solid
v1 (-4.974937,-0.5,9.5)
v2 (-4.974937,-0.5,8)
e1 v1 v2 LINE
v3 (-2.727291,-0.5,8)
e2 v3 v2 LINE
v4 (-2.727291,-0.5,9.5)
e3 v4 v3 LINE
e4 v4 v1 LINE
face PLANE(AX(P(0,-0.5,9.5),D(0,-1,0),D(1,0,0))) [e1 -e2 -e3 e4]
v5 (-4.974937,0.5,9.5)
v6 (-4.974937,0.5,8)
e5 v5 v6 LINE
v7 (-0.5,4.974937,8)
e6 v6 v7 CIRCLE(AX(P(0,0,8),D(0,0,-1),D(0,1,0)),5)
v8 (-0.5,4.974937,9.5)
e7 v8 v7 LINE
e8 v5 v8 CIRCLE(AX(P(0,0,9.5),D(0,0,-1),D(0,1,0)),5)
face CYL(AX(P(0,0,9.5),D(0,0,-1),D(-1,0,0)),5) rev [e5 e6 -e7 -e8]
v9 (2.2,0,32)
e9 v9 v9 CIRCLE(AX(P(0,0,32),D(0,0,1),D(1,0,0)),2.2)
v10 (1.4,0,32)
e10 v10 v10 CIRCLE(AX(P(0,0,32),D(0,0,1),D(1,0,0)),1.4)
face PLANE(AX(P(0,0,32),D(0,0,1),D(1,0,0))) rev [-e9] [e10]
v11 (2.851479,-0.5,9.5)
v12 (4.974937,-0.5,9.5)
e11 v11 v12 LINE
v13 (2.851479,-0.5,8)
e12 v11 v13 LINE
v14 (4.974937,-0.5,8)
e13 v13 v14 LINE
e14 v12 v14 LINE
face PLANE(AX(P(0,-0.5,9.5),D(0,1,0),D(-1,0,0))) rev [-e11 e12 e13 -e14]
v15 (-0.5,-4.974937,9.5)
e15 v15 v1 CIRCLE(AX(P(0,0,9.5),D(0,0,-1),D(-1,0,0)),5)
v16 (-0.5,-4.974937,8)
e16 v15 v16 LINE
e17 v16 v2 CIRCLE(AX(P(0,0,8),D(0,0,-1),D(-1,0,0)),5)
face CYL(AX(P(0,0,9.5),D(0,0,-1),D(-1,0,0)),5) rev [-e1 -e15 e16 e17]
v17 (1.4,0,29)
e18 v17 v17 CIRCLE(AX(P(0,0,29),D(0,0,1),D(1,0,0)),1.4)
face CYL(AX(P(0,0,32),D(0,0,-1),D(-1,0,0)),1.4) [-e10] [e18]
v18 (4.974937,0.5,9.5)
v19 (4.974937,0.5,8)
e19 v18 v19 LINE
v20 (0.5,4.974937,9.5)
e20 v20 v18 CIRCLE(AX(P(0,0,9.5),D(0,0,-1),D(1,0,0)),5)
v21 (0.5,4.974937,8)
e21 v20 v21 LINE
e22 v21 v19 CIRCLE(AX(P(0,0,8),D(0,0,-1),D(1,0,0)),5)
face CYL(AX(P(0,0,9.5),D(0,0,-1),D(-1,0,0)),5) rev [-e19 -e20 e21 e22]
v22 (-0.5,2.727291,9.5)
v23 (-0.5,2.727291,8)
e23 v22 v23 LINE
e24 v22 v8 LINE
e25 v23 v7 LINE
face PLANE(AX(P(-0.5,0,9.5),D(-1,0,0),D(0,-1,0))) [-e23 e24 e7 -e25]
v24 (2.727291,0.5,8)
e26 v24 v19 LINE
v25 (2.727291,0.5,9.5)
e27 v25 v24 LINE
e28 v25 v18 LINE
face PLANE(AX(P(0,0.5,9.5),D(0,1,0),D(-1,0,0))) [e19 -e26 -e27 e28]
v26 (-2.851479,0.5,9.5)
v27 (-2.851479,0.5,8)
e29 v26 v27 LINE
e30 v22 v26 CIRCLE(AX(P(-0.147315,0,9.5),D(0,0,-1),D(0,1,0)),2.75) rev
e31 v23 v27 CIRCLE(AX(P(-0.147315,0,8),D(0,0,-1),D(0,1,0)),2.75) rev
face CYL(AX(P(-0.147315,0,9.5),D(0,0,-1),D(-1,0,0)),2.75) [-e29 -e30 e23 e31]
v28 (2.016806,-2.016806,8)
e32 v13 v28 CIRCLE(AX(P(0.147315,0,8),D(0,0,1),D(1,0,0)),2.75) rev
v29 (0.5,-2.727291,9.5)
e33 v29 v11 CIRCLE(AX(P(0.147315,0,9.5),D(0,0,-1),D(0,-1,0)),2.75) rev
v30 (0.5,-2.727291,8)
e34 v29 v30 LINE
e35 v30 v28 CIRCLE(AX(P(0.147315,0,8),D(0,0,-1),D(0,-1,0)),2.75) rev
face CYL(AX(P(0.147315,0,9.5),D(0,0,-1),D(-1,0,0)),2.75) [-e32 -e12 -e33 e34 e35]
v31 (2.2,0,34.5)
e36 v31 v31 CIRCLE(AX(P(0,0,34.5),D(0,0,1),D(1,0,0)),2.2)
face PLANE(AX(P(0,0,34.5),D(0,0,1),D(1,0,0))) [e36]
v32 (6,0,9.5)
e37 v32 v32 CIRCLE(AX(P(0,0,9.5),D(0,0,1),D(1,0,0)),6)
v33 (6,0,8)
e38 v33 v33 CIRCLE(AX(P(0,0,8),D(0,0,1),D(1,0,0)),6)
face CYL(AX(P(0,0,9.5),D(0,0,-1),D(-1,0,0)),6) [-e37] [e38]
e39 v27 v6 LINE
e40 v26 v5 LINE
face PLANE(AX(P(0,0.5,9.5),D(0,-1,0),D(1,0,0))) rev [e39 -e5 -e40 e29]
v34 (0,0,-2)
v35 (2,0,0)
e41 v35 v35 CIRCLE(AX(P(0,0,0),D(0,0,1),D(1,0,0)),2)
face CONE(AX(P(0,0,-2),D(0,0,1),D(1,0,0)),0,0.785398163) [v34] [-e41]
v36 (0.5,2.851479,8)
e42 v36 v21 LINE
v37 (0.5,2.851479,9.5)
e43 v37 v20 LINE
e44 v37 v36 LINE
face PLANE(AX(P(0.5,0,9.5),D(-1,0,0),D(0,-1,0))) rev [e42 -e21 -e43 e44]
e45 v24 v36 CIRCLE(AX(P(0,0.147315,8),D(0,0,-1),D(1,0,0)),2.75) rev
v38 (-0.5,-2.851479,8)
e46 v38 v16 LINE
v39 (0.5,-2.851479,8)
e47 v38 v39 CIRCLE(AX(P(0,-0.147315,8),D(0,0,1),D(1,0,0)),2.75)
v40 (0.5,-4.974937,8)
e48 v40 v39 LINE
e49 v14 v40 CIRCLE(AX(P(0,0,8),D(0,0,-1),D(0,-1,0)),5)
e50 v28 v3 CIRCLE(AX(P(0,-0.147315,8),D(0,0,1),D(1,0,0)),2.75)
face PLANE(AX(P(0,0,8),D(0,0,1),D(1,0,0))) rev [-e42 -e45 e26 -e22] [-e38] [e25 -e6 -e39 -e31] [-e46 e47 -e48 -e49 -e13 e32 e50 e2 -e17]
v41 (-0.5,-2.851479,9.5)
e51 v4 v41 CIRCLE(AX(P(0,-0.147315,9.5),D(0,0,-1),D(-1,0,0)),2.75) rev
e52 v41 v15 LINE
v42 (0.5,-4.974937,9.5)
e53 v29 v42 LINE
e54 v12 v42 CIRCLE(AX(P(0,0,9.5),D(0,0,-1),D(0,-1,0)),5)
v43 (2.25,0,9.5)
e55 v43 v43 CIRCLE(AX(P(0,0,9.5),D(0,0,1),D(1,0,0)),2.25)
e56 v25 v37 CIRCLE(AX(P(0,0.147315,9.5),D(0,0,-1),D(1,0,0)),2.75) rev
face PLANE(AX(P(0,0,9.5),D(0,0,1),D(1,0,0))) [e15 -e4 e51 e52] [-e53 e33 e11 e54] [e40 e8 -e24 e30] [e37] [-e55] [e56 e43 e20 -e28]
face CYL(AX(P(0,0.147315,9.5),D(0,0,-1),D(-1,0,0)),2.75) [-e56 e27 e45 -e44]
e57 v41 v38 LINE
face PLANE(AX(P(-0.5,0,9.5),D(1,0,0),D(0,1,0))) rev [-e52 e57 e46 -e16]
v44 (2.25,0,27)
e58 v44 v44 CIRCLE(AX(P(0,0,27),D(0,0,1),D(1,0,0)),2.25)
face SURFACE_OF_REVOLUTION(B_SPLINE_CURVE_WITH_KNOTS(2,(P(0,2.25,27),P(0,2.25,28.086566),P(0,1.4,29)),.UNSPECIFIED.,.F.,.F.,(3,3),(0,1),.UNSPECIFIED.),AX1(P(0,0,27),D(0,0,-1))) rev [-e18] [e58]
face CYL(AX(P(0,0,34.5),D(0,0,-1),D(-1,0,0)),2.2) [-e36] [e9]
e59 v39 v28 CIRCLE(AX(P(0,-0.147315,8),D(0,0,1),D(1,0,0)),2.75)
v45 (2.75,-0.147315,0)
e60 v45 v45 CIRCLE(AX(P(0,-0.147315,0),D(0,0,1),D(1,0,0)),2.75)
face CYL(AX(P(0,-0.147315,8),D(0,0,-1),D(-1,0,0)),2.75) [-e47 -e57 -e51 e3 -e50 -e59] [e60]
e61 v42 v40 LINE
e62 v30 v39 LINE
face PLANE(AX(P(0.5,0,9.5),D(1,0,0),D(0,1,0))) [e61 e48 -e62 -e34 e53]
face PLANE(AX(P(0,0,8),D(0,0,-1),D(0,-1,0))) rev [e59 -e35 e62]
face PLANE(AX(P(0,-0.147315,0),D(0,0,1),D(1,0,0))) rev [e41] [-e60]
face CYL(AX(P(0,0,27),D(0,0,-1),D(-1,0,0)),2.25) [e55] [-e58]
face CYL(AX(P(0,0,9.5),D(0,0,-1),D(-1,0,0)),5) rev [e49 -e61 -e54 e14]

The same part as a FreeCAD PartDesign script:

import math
import FreeCAD as App
import Part
import Sketcher
Q = App.Units.Quantity


def add_polygon(sketch, points):
    """Adds a closed chain of lines whose ends are joined by coincident constraints."""
    first, n = sketch.GeometryCount, len(points)
    for a, b in zip(points, points[1:] + points[:1]):
        sketch.addGeometry(Part.LineSegment(App.Vector(*a, 0), App.Vector(*b, 0)), False)
    for i in range(n):
        sketch.addConstraint(Sketcher.Constraint("Coincident", first + i, 2, first + (i + 1) % n, 1))

doc = App.newDocument("Part")
body = doc.addObject("PartDesign::Body", "Body")

# Sketch on XY plane
sketch1 = body.newObject("Sketcher::SketchObject", "Sketch")
sketch1.AttachmentSupport = (doc.getObject("XY_Plane"), [""])
sketch1.MapMode = "FlatFace"
sketch1.addGeometry(Part.Circle(App.Vector(0, -0.147315, 0), App.Vector(0, 0, 1), 2.75), False)
sketch1.addConstraint([
    Sketcher.Constraint("PointOnObject", 0, 3, -2),
    Sketcher.Constraint("Diameter", 0, Q("5.5 mm")),
    Sketcher.Constraint("DistanceY", 0, 3, -1, 1, Q("0.147315 mm")),
])
pad1 = body.newObject("PartDesign::Pad", "Pad")
pad1.Profile = sketch1
pad1.Length = 8

# Sketch on XZ plane
sketch2 = body.newObject("Sketcher::SketchObject", "Sketch001")
sketch2.AttachmentSupport = (doc.getObject("XZ_Plane"), [""])
sketch2.MapMode = "FlatFace"
add_polygon(sketch2, [(0, 0), (0, -2), (-2, 0)])  # lines 0-2
sketch2.addConstraint([
    Sketcher.Constraint("Vertical", 0),
    Sketcher.Constraint("Horizontal", 2),
    Sketcher.Constraint("Coincident", 2, 2, -1, 1),
    Sketcher.Constraint("Equal", 2, 0),
    Sketcher.Constraint("DistanceX", 2, 1, 2, 2, Q("2 mm")),
])
revolution = body.newObject("PartDesign::Revolution", "Revolution")
revolution.Profile = sketch2
revolution.ReferenceAxis = (sketch2, ["V_Axis"])
revolution.Angle = 360

# Sketch on XY plane
sketch3 = body.newObject("Sketcher::SketchObject", "Sketch002")
sketch3.AttachmentSupport = (doc.getObject("XY_Plane"), [""])
sketch3.MapMode = "FlatFace"
sketch3.AttachmentOffset = App.Placement(App.Vector(0, 0, 8), App.Rotation())
sketch3.addGeometry(Part.Circle(App.Vector(0, 0, 0), App.Vector(0, 0, 1), 2.25), False)
sketch3.addConstraint([
    Sketcher.Constraint("Coincident", 0, 3, -1, 1),
    Sketcher.Constraint("Diameter", 0, Q("4.5 mm")),
])
pad2 = body.newObject("PartDesign::Pad", "Pad001")
pad2.Profile = sketch3
pad2.Length = 19

# Sketch on XY plane
sketch4 = body.newObject("Sketcher::SketchObject", "Sketch003")
sketch4.AttachmentSupport = (doc.getObject("XY_Plane"), [""])
sketch4.MapMode = "FlatFace"
sketch4.AttachmentOffset = App.Placement(App.Vector(0, 0, 8), App.Rotation())
sketch4.addGeometry(Part.Circle(App.Vector(0, 0, 0), App.Vector(0, 0, 1), 6), False)
sketch4.addConstraint([
    Sketcher.Constraint("Coincident", 0, 3, -1, 1),
    Sketcher.Constraint("Diameter", 0, Q("12 mm")),
])
pad3 = body.newObject("PartDesign::Pad", "Pad002")
pad3.Profile = sketch4
pad3.Length = 1.5

# Sketch on XY plane
sketch5 = body.newObject("Sketcher::SketchObject", "Sketch004")
sketch5.AttachmentSupport = (doc.getObject("XY_Plane"), [""])
sketch5.MapMode = "FlatFace"
sketch5.AttachmentOffset = App.Placement(App.Vector(0, 0, 8), App.Rotation())
sketch5.addGeometry([
    Part.ArcOfCircle(Part.Circle(App.Vector(0, 0, 0), App.Vector(0, 0, 1), 5), math.radians(-174.26083), math.radians(-95.73917)),
    Part.LineSegment(App.Vector(-4.974937, -0.5, 0), App.Vector(-2.727291, -0.5, 0)),
    Part.ArcOfCircle(Part.Circle(App.Vector(0, -0.147315, 0), App.Vector(0, 0, 1), 2.75), math.radians(-172.631582), math.radians(-100.475682)),
    Part.LineSegment(App.Vector(-0.5, -2.851479, 0), App.Vector(-0.5, -4.974937, 0)),
], False)
sketch5.addConstraint([
    Sketcher.Constraint("Coincident", 0, 1, 1, 1),
    Sketcher.Constraint("Coincident", 1, 2, 2, 1),
    Sketcher.Constraint("Coincident", 2, 2, 3, 1),
    Sketcher.Constraint("Coincident", 3, 2, 0, 2),
    Sketcher.Constraint("Horizontal", 1),
    Sketcher.Constraint("Vertical", 3),
    Sketcher.Constraint("Coincident", 0, 3, -1, 1),
    Sketcher.Constraint("PointOnObject", 2, 3, -2),
    Sketcher.Constraint("Radius", 0, Q("5 mm")),
    Sketcher.Constraint("Radius", 2, Q("2.75 mm")),
    Sketcher.Constraint("DistanceY", 0, 1, -1, 1, Q("0.5 mm")),
    Sketcher.Constraint("DistanceX", 2, 2, -1, 1, Q("0.5 mm")),
    Sketcher.Constraint("DistanceY", 3, 2, 3, 1, Q("2.123458 mm")),
])
pocket1 = body.newObject("PartDesign::Pocket", "Pocket")
pocket1.Profile = sketch5
pocket1.Length = 1.5
pocket1.Reversed = True
doc.recompute()

polarpattern = body.newObject("PartDesign::PolarPattern", "PolarPattern")
polarpattern.Originals = [pocket1]
polarpattern.Axis = (doc.getObject("Z_Axis"), [""])
polarpattern.Angle = 360
polarpattern.Occurrences = 4
body.Tip = polarpattern

# Sketch on YZ plane
sketch6 = body.newObject("Sketcher::SketchObject", "Sketch005")
sketch6.AttachmentSupport = (doc.getObject("YZ_Plane"), [""])
sketch6.MapMode = "FlatFace"
sketch6.addGeometry([
    Part.LineSegment(App.Vector(0, 29, 0), App.Vector(0, 27, 0)),
    Part.LineSegment(App.Vector(0, 27, 0), App.Vector(2.25, 27, 0)),
    Part.BSplineCurve([App.Vector(1.4, 29, 0), App.Vector(2.25, 28.086566, 0), App.Vector(2.25, 27, 0)], [3, 3], [0, 1], False, 2, [1, 1, 1], False),
    Part.LineSegment(App.Vector(1.4, 29, 0), App.Vector(0, 29, 0)),
], False)
sketch6.addConstraint([
    Sketcher.Constraint("Block", 2),
    Sketcher.Constraint("Coincident", 0, 2, 1, 1),
    Sketcher.Constraint("Coincident", 1, 2, 2, 2),
    Sketcher.Constraint("Coincident", 2, 1, 3, 1),
    Sketcher.Constraint("Coincident", 3, 2, 0, 1),
    Sketcher.Constraint("Vertical", 0),
    Sketcher.Constraint("Horizontal", 1),
    Sketcher.Constraint("Horizontal", 3),
    Sketcher.Constraint("PointOnObject", 0, 2, -2),
])
revolution2 = body.newObject("PartDesign::Revolution", "Revolution001")
revolution2.Profile = sketch6
revolution2.ReferenceAxis = (sketch6, ["V_Axis"])
revolution2.Angle = 360

# Sketch on XY plane
sketch7 = body.newObject("Sketcher::SketchObject", "Sketch006")
sketch7.AttachmentSupport = (doc.getObject("XY_Plane"), [""])
sketch7.MapMode = "FlatFace"
sketch7.AttachmentOffset = App.Placement(App.Vector(0, 0, 29), App.Rotation())
sketch7.addGeometry(Part.Circle(App.Vector(0, 0, 0), App.Vector(0, 0, 1), 1.4), False)
sketch7.addConstraint([
    Sketcher.Constraint("Coincident", 0, 3, -1, 1),
    Sketcher.Constraint("Diameter", 0, Q("2.8 mm")),
])
pad4 = body.newObject("PartDesign::Pad", "Pad003")
pad4.Profile = sketch7
pad4.Length = 3

# Sketch on XY plane
sketch8 = body.newObject("Sketcher::SketchObject", "Sketch007")
sketch8.AttachmentSupport = (doc.getObject("XY_Plane"), [""])
sketch8.MapMode = "FlatFace"
sketch8.AttachmentOffset = App.Placement(App.Vector(0, 0, 32), App.Rotation())
sketch8.addGeometry(Part.Circle(App.Vector(0, 0, 0), App.Vector(0, 0, 1), 2.2), False)
sketch8.addConstraint([
    Sketcher.Constraint("Coincident", 0, 3, -1, 1),
    Sketcher.Constraint("Diameter", 0, Q("4.4 mm")),
])
pad5 = body.newObject("PartDesign::Pad", "Pad004")
pad5.Profile = sketch8
pad5.Length = 2.5

doc.recompute()
